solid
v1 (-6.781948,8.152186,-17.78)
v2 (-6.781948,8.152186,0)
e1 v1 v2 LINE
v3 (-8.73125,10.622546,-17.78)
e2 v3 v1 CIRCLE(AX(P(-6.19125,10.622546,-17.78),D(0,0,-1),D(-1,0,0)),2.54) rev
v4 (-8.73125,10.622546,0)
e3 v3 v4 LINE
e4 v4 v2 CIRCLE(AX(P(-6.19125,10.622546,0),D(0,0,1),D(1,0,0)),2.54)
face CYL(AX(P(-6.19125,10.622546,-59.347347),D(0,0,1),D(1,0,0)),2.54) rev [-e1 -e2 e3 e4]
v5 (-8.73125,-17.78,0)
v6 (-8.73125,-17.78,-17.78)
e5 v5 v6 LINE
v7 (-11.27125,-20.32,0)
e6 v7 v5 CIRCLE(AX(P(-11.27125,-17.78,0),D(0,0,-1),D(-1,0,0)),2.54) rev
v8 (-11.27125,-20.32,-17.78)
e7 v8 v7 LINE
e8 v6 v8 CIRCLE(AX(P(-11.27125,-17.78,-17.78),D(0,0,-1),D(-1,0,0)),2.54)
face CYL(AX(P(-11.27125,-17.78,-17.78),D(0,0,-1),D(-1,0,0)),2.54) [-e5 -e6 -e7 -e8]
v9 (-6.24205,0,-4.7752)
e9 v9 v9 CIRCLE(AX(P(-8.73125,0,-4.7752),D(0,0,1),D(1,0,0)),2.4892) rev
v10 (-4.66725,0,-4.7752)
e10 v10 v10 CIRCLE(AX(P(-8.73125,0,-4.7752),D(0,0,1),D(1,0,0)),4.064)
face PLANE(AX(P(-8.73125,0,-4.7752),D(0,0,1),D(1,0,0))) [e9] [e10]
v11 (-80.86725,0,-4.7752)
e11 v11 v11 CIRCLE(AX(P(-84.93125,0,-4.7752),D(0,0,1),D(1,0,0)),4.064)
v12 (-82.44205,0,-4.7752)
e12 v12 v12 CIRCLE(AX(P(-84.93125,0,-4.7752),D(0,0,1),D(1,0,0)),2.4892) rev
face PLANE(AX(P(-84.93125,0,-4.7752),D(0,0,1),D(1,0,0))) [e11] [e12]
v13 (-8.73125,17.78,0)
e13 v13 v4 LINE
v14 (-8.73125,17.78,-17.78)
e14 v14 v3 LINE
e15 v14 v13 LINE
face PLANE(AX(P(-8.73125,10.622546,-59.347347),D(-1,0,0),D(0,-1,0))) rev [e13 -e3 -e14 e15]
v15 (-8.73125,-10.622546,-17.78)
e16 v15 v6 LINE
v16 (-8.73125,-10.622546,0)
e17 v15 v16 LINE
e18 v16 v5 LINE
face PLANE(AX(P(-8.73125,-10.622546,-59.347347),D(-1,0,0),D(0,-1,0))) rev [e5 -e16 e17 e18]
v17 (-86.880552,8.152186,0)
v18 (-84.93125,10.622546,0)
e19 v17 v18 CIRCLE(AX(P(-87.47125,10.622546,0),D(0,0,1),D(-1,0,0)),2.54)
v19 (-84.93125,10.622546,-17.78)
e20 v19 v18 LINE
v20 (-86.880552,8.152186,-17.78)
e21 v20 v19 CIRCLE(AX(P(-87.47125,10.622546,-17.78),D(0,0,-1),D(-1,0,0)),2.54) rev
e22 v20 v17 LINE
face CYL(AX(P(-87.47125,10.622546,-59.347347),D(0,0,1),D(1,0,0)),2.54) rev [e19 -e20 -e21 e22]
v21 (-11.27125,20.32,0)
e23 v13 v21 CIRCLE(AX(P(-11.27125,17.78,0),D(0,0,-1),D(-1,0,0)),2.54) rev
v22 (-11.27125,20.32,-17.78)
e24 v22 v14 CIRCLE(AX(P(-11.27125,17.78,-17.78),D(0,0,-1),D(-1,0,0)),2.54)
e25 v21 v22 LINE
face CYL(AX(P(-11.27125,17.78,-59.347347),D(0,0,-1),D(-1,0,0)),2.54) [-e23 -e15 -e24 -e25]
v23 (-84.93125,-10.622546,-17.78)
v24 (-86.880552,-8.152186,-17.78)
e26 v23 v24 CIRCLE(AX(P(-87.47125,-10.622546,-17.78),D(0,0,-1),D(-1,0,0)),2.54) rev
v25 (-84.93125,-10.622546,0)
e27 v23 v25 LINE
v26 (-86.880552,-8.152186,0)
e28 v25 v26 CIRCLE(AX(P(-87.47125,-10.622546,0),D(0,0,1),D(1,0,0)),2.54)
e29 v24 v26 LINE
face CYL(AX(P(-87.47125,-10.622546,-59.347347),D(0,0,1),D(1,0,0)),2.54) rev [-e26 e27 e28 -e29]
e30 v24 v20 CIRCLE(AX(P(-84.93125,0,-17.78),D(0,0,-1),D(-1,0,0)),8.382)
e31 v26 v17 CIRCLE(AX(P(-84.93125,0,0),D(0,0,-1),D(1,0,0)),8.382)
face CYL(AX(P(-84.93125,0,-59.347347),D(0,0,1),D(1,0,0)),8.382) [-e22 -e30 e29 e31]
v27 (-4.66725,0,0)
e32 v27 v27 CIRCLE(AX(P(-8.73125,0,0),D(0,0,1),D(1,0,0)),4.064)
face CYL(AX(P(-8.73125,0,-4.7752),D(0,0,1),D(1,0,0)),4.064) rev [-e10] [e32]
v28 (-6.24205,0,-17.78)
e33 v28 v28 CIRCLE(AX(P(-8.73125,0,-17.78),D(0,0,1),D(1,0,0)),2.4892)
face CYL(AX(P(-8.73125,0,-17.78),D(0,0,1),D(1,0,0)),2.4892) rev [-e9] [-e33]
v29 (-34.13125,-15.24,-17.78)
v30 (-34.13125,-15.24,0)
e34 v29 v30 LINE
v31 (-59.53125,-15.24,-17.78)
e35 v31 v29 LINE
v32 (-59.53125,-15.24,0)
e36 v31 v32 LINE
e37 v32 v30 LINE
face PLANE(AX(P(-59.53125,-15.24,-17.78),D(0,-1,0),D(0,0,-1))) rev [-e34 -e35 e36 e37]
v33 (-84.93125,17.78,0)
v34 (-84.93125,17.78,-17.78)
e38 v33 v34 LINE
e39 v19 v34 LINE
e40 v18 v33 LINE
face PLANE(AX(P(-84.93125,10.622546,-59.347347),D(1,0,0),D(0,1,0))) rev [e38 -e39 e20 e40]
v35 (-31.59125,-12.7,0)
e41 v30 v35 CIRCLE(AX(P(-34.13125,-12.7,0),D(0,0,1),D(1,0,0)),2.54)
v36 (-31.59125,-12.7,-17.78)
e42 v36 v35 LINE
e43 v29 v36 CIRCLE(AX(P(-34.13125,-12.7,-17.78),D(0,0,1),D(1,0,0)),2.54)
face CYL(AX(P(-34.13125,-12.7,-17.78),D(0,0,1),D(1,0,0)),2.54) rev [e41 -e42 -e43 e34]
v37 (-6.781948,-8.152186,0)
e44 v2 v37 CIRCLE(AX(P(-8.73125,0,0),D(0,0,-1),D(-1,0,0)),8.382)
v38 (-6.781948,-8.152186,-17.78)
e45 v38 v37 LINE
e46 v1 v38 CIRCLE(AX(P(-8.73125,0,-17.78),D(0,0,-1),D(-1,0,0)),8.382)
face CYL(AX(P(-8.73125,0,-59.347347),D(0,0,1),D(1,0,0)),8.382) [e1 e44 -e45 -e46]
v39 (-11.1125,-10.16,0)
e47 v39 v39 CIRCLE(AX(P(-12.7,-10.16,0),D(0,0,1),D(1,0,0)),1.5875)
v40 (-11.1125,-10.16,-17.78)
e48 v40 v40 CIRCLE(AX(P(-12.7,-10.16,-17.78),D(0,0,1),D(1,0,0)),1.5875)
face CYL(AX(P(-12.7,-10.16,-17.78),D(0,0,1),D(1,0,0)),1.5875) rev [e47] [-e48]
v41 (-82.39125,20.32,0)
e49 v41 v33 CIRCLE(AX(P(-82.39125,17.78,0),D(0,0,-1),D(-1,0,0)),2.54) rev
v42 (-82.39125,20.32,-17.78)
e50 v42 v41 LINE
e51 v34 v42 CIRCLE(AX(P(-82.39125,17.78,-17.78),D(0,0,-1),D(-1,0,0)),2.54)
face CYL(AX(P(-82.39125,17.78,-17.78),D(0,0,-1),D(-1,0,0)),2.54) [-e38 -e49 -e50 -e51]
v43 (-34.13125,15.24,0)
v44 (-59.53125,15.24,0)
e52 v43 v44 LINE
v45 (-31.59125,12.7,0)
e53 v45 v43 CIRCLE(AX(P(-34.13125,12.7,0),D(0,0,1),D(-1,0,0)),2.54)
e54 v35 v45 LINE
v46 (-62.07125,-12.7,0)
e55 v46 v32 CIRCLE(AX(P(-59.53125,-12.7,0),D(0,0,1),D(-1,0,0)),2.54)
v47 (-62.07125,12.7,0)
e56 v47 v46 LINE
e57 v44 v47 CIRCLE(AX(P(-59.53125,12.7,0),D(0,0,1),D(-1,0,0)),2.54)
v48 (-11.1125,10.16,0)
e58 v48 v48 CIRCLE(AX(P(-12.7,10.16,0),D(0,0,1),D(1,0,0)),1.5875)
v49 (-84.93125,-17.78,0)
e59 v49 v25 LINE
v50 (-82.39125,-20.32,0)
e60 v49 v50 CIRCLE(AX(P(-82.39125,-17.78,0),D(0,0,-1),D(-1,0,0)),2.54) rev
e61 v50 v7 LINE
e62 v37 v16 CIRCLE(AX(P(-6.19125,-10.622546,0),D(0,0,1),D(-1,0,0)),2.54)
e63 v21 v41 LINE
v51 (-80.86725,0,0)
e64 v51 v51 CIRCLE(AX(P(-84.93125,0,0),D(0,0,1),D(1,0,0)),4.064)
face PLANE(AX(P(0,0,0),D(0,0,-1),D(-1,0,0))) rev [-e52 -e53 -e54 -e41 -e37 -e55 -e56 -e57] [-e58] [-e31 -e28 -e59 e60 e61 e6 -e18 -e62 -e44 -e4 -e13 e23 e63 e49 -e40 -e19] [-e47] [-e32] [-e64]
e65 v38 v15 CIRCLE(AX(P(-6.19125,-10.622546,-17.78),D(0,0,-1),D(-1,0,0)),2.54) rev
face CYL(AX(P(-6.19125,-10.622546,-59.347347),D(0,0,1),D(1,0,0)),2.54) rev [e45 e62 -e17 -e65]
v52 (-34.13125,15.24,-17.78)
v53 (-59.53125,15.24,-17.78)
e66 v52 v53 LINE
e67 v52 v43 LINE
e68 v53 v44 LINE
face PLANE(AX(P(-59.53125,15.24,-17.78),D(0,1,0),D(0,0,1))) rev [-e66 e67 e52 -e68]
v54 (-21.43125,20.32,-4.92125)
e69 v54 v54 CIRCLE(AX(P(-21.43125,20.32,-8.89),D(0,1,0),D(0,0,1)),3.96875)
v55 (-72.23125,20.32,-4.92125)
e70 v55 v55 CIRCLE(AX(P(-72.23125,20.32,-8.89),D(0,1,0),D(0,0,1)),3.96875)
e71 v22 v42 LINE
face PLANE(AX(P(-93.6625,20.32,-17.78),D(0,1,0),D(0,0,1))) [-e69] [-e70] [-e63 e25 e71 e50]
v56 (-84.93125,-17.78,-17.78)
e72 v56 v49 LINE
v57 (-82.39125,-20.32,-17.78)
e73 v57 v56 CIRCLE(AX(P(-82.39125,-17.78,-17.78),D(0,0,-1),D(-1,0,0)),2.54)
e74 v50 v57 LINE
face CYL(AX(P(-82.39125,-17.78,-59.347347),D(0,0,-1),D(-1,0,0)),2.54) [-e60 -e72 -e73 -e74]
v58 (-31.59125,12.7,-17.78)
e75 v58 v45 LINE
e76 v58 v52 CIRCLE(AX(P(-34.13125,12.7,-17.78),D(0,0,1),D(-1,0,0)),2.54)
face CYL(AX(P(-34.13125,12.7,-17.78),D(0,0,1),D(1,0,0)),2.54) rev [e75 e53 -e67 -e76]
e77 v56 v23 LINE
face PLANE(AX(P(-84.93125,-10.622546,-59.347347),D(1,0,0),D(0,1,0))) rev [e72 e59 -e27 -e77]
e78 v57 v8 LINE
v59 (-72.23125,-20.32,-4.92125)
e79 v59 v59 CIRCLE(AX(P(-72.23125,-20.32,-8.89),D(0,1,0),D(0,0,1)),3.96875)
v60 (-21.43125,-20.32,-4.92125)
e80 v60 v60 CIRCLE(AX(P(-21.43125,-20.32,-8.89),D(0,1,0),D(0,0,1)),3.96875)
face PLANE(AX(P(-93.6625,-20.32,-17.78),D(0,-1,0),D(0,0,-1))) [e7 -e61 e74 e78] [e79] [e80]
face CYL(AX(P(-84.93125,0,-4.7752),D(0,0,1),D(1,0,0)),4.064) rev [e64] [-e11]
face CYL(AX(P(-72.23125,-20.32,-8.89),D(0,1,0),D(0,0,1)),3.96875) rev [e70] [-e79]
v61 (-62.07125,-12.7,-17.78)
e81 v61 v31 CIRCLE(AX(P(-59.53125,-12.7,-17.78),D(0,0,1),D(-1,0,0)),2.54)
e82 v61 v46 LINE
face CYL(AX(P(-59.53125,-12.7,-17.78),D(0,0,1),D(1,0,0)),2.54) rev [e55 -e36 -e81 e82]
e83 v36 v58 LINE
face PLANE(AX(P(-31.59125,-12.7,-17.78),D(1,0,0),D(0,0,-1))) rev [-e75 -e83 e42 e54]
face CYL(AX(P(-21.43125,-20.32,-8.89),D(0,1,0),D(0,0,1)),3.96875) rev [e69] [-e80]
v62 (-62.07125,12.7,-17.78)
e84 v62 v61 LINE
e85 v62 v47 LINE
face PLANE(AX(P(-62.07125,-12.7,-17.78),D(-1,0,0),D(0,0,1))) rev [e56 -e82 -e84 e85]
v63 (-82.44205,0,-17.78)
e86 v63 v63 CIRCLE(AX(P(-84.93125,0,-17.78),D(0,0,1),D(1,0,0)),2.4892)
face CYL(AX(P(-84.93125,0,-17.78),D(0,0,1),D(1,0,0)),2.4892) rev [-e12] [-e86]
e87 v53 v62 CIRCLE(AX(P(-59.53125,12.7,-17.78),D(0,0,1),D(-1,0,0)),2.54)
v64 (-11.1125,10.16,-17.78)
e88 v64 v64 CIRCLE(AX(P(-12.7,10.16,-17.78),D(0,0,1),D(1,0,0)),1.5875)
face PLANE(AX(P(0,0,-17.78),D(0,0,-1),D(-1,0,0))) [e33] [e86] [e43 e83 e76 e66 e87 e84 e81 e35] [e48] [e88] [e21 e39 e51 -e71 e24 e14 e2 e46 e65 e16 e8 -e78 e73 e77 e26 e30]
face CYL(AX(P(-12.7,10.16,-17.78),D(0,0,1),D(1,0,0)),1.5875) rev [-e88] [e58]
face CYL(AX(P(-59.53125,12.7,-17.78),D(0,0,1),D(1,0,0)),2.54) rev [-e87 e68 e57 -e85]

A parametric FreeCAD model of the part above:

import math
import FreeCAD as App
import Part
import Sketcher
from FreeCAD import Vector
Q = App.Units.Quantity


def edges_at(feature, points):
    """Names of the edges that pass closest to the given points."""
    edges = feature.Shape.Edges
    near = lambda p: min(range(len(edges)), key=lambda i: edges[i].distToShape(Part.Vertex(*p))[0])
    return sorted({f"Edge{near(p) + 1}" for p in points})

doc = App.newDocument("Part")
body = doc.addObject("PartDesign::Body", "Body")

# Sketch on XY plane
sketch1 = body.newObject("Sketcher::SketchObject", "Sketch")
sketch1.AttachmentSupport = (doc.getObject("XY_Plane"), [""])
sketch1.MapMode = "FlatFace"
sketch1.addGeometry([
    Part.LineSegment(Vector(-93.7, 20.3, 0), Vector(-93.7, -20.3, 0)),  # 0
    Part.LineSegment(Vector(-93.7, -20.3, 0), Vector(0, -20.3, 0)),  # 1
    Part.LineSegment(Vector(0, -20.3, 0), Vector(0, 20.3, 0)),  # 2
    Part.LineSegment(Vector(0, 20.3, 0), Vector(-93.7, 20.3, 0)),  # 3
    Part.Circle(Vector(-84.9, 0, 0), Vector(0, 0, 1), 2.5),  # 4
    Part.Circle(Vector(-12.7, -10.2, 0), Vector(0, 0, 1), 1.6),  # 5
    Part.Circle(Vector(-8.7, 0, 0), Vector(0, 0, 1), 2.5),  # 6
    Part.Circle(Vector(-12.7, 10.2, 0), Vector(0, 0, 1), 1.6),  # 7
], False)
sketch1.addConstraint([
    Sketcher.Constraint("Coincident", 0, 2, 1, 1),
    Sketcher.Constraint("Coincident", 1, 2, 2, 1),
    Sketcher.Constraint("Coincident", 2, 2, 3, 1),
    Sketcher.Constraint("Coincident", 3, 2, 0, 1),
    Sketcher.Constraint("Vertical", 0),
    Sketcher.Constraint("Horizontal", 1),
    Sketcher.Constraint("Vertical", 2),
    Sketcher.Constraint("Horizontal", 3),
    Sketcher.Constraint("Equal", 4, 6),
    Sketcher.Constraint("Equal", 5, 7),
    Sketcher.Constraint("Symmetric", 1, 2, 2, 2, -1, 1),
    Sketcher.Constraint("Symmetric", 5, 3, 7, 3, -1),
    Sketcher.Constraint("PointOnObject", 4, 3, -1),
    Sketcher.Constraint("PointOnObject", 6, 3, -1),
    Sketcher.Constraint("Diameter", 4, Q("0.196 in")),
    Sketcher.Constraint("Diameter", 5, Q("0.125 in")),
    Sketcher.Constraint("DistanceY", 0, 2, 0, 1, Q("1.6 in")),
    Sketcher.Constraint("DistanceX", 4, 3, 6, 3, Q("3 in")),
    Sketcher.Constraint("DistanceX", 5, 3, -1, 1, Q("0.5 in")),
    Sketcher.Constraint("DistanceY", 5, 3, -1, 1, Q("0.4 in")),
    Sketcher.Constraint("DistanceX", 1, 1, 1, 2, Q("3.6875 in")),
    Sketcher.Constraint("DistanceX", 4, 3, -1, 1, Q("3.34375 in")),
])
pad1 = body.newObject("PartDesign::Pad", "Pad")
pad1.Profile = sketch1
pad1.Length = Q("0.7 in")
pad1.Reversed = True

# Sketch on XZ plane
sketch2 = body.newObject("Sketcher::SketchObject", "Sketch001")
sketch2.AttachmentSupport = (doc.getObject("XZ_Plane"), [""])
sketch2.MapMode = "FlatFace"
sketch2.AttachmentOffset = App.Placement(Vector(0, 0, -0.8 * 25.4), App.Rotation())
sketch2.addGeometry([
    Part.Circle(Vector(-72.2, -8.9, 0), Vector(0, 0, 1), 4),
    Part.Circle(Vector(-21.4, -8.9, 0), Vector(0, 0, 1), 4),
], False)
sketch2.addConstraint([
    Sketcher.Constraint("Equal", 0, 1),
    Sketcher.Constraint("Horizontal", 0, 3, 1, 3),
    Sketcher.Constraint("Diameter", 0, Q("0.3125 in")),
    Sketcher.Constraint("DistanceX", 0, 3, 1, 3, Q("2 in")),
    Sketcher.Constraint("DistanceY", 0, 3, -1, 1, Q("0.35 in")),
    Sketcher.Constraint("DistanceX", 0, 3, -1, 1, Q("2.84375 in")),
])
pocket1 = body.newObject("PartDesign::Pocket", "Pocket")
pocket1.Profile = sketch2
pocket1.Type = "ThroughAll"
pocket1.Reversed = True

# Sketch on XY plane
sketch3 = body.newObject("Sketcher::SketchObject", "Sketch002")
sketch3.AttachmentSupport = (doc.getObject("XY_Plane"), [""])
sketch3.MapMode = "FlatFace"
sketch3.addGeometry([
    Part.LineSegment(Vector(-93.7, 20.3, 0), Vector(-93.7, -20.3, 0)),  # 0
    Part.LineSegment(Vector(-93.7, -20.3, 0), Vector(-84.9, -20.3, 0)),  # 1
    Part.LineSegment(Vector(-84.9, -20.3, 0), Vector(-84.9, -10.6, 0)),  # 2
    Part.ArcOfCircle(Part.Circle(Vector(-87.5, -10.6, 0), Vector(0, 0, 1), 2.5), math.radians(0), math.radians(77)),  # 3
    Part.ArcOfCircle(Part.Circle(Vector(-84.9, 0, 0), Vector(0, 0, 1), 8.4), math.radians(103), math.radians(257)),  # 4
    Part.ArcOfCircle(Part.Circle(Vector(-87.5, 10.6, 0), Vector(0, 0, 1), 2.5), math.radians(-77), math.radians(0)),  # 5
    Part.LineSegment(Vector(-84.9, 10.6, 0), Vector(-84.9, 20.3, 0)),  # 6
    Part.LineSegment(Vector(-84.9, 20.3, 0), Vector(-93.7, 20.3, 0)),  # 7
    Part.LineSegment(Vector(0, -20.3, 0), Vector(0, 20.3, 0)),  # 8
    Part.LineSegment(Vector(0, 20.3, 0), Vector(-8.7, 20.3, 0)),  # 9
    Part.LineSegment(Vector(-8.7, 20.3, 0), Vector(-8.7, 10.6, 0)),  # 10
    Part.ArcOfCircle(Part.Circle(Vector(-6.2, 10.6, 0), Vector(0, 0, 1), 2.5), math.radians(-180), math.radians(-103)),  # 11
    Part.ArcOfCircle(Part.Circle(Vector(-8.7, 0, 0), Vector(0, 0, 1), 8.4), math.radians(-77), math.radians(77)),  # 12
    Part.ArcOfCircle(Part.Circle(Vector(-6.2, -10.6, 0), Vector(0, 0, 1), 2.5), math.radians(103), math.radians(180)),  # 13
    Part.LineSegment(Vector(-8.7, -10.6, 0), Vector(-8.7, -20.3, 0)),  # 14
    Part.LineSegment(Vector(-8.7, -20.3, 0), Vector(0, -20.3, 0)),  # 15
], False)
sketch3.addConstraint([
    Sketcher.Constraint("Coincident", 0, 2, 1, 1),
    Sketcher.Constraint("Coincident", 1, 2, 2, 1),
    Sketcher.Constraint("Tangent", 2, 2, 3, 1),
    Sketcher.Constraint("Tangent", 3, 2, 4, 2),
    Sketcher.Constraint("Tangent", 4, 1, 5, 1),
    Sketcher.Constraint("Tangent", 5, 2, 6, 1),
    Sketcher.Constraint("Coincident", 6, 2, 7, 1),
    Sketcher.Constraint("Coincident", 7, 2, 0, 1),
    Sketcher.Constraint("Coincident", 8, 2, 9, 1),
    Sketcher.Constraint("Coincident", 9, 2, 10, 1),
    Sketcher.Constraint("Tangent", 10, 2, 11, 1),
    Sketcher.Constraint("Tangent", 11, 2, 12, 2),
    Sketcher.Constraint("Tangent", 12, 1, 13, 1),
    Sketcher.Constraint("Tangent", 13, 2, 14, 1),
    Sketcher.Constraint("Coincident", 14, 2, 15, 1),
    Sketcher.Constraint("Coincident", 15, 2, 8, 1),
    Sketcher.Constraint("Vertical", 0),
    Sketcher.Constraint("Horizontal", 1),
    Sketcher.Constraint("Vertical", 2),
    Sketcher.Constraint("Vertical", 6),
    Sketcher.Constraint("Horizontal", 7),
    Sketcher.Constraint("Vertical", 8),
    Sketcher.Constraint("Horizontal", 9),
    Sketcher.Constraint("Vertical", 10),
    Sketcher.Constraint("Vertical", 14),
    Sketcher.Constraint("Horizontal", 15),
    Sketcher.Constraint("Equal", 3, 5),
    Sketcher.Constraint("Equal", 5, 11),
    Sketcher.Constraint("Equal", 4, 12),
    Sketcher.Constraint("Equal", 11, 13),
    Sketcher.Constraint("Symmetric", 8, 2, 15, 2, -1, 1),
    Sketcher.Constraint("Symmetric", 3, 3, 5, 3, -1),
    Sketcher.Constraint("Symmetric", 11, 3, 13, 3, -1),
    Sketcher.Constraint("Horizontal", 5, 3, 11, 3),
    Sketcher.Constraint("Horizontal", 7, 2, 8, 2),
    Sketcher.Constraint("Horizontal", 1, 2, 14, 2),
    Sketcher.Constraint("Vertical", 4, 3, 1, 2),
    Sketcher.Constraint("Equal", 7, 9),
    Sketcher.Constraint("Radius", 3, Q("0.1 in")),
    Sketcher.Constraint("Radius", 4, Q("0.33 in")),
    Sketcher.Constraint("DistanceY", 0, 2, 0, 1, Q("1.6 in")),
    Sketcher.Constraint("DistanceX", 4, 3, 12, 3, Q("3 in")),
    Sketcher.Constraint("DistanceX", 1, 1, 1, 2, Q("0.34375 in")),
])
pocket2 = body.newObject("PartDesign::Pocket", "Pocket001")
pocket2.Profile = sketch3
pocket2.Length = Q("0.7 in")
doc.recompute()

fillet = body.newObject("PartDesign::Fillet", "Fillet")
fillet.Base = (pocket2, edges_at(pocket2, [
    (-84.931, 20.32, -8.89),
    (-84.931, -20.32, -8.89),
    (-8.731, 20.32, -8.89),
    (-8.731, -20.32, -8.89),
]))
fillet.Radius = Q("0.1 in")

# Sketch on XY plane
sketch4 = body.newObject("Sketcher::SketchObject", "Sketch003")
sketch4.AttachmentSupport = (doc.getObject("XY_Plane"), [""])
sketch4.MapMode = "FlatFace"
sketch4.addGeometry([
    Part.Circle(Vector(-84.9, 0, 0), Vector(0, 0, 1), 4.1),
    Part.Circle(Vector(-8.7, 0, 0), Vector(0, 0, 1), 4.1),
], False)
sketch4.addConstraint([
    Sketcher.Constraint("Equal", 0, 1),
    Sketcher.Constraint("PointOnObject", 0, 3, -1),
    Sketcher.Constraint("PointOnObject", 1, 3, -1),
    Sketcher.Constraint("Diameter", 0, Q("0.32 in")),
    Sketcher.Constraint("DistanceX", 0, 3, 1, 3, Q("3 in")),
    Sketcher.Constraint("DistanceX", 0, 3, -1, 1, Q("3.34375 in")),
])
pocket3 = body.newObject("PartDesign::Pocket", "Pocket002")
pocket3.Profile = sketch4
pocket3.Length = Q("0.188 in")

# Sketch on XY plane
sketch5 = body.newObject("Sketcher::SketchObject", "Sketch004")
sketch5.AttachmentSupport = (doc.getObject("XY_Plane"), [""])
sketch5.MapMode = "FlatFace"
sketch5.addGeometry([
    Part.LineSegment(Vector(-59.5, -15.2, 0), Vector(-34.1, -15.2, 0)),  # 0
    Part.ArcOfCircle(Part.Circle(Vector(-34.1, -12.7, 0), Vector(0, 0, 1), 2.5), math.radians(-90), math.radians(0)),  # 1
    Part.LineSegment(Vector(-31.6, -12.7, 0), Vector(-31.6, 12.7, 0)),  # 2
    Part.ArcOfCircle(Part.Circle(Vector(-34.1, 12.7, 0), Vector(0, 0, 1), 2.5), math.radians(0), math.radians(90)),  # 3
    Part.LineSegment(Vector(-34.1, 15.2, 0), Vector(-59.5, 15.2, 0)),  # 4
    Part.ArcOfCircle(Part.Circle(Vector(-59.5, 12.7, 0), Vector(0, 0, 1), 2.5), math.radians(90), math.radians(180)),  # 5
    Part.LineSegment(Vector(-62.1, 12.7, 0), Vector(-62.1, -12.7, 0)),  # 6
    Part.ArcOfCircle(Part.Circle(Vector(-59.5, -12.7, 0), Vector(0, 0, 1), 2.5), math.radians(-180), math.radians(-90)),  # 7
], False)
sketch5.addConstraint([
    Sketcher.Constraint("Tangent", 0, 2, 1, 1),
    Sketcher.Constraint("Tangent", 1, 2, 2, 1),
    Sketcher.Constraint("Tangent", 2, 2, 3, 1),
    Sketcher.Constraint("Tangent", 3, 2, 4, 1),
    Sketcher.Constraint("Tangent", 4, 2, 5, 1),
    Sketcher.Constraint("Tangent", 5, 2, 6, 1),
    Sketcher.Constraint("Tangent", 6, 2, 7, 1),
    Sketcher.Constraint("Tangent", 7, 2, 0, 1),
    Sketcher.Constraint("Horizontal", 0),
    Sketcher.Constraint("Vertical", 2),
    Sketcher.Constraint("Horizontal", 4),
    Sketcher.Constraint("Vertical", 6),
    Sketcher.Constraint("Equal", 1, 3),
    Sketcher.Constraint("Equal", 3, 5),
    Sketcher.Constraint("Equal", 5, 7),
    Sketcher.Constraint("Equal", 4, 2),
    Sketcher.Constraint("Radius", 1, Q("0.1 in")),
    Sketcher.Constraint("DistanceX", 0, 1, 0, 2, Q("1 in")),
    Sketcher.Constraint("DistanceY", 1, 3, -1, 1, Q("0.5 in")),
    Sketcher.Constraint("DistanceX", 1, 3, -1, 1, Q("1.34375 in")),
])
pocket4 = body.newObject("PartDesign::Pocket", "Pocket003")
pocket4.Profile = sketch5
pocket4.Type = "ThroughAll"

doc.recompute()
